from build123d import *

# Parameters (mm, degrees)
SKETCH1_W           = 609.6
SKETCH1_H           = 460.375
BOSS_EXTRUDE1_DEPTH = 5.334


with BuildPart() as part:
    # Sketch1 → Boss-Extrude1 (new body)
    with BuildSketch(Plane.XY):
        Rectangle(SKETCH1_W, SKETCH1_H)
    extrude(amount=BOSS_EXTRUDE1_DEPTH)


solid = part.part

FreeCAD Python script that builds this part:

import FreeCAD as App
import Part
import Sketcher
from FreeCAD import Vector
Q = App.Units.Quantity


def add_polygon(sketch, points):
    """Adds a closed chain of lines whose ends are joined by coincident constraints."""
    first, n = sketch.GeometryCount, len(points)
    for a, b in zip(points, points[1:] + points[:1]):
        sketch.addGeometry(Part.LineSegment(App.Vector(*a, 0), App.Vector(*b, 0)), False)
    for i in range(n):
        sketch.addConstraint(Sketcher.Constraint("Coincident", first + i, 2, first + (i + 1) % n, 1))

doc = App.newDocument("Part")
body = doc.addObject("PartDesign::Body", "Body")

sketch1 = body.newObject("Sketcher::SketchObject", "Sketch")
sketch1.AttachmentSupport = (doc.getObject("XY_Plane"), [""])
sketch1.MapMode = "FlatFace"
add_polygon(sketch1, [(-305, 230), (-305, -230), (305, -230), (305, 230)])
sketch1.addConstraint([
    Sketcher.Constraint("Vertical", 0),
    Sketcher.Constraint("Horizontal", 1),
    Sketcher.Constraint("Vertical", 2),
    Sketcher.Constraint("Horizontal", 3),
    Sketcher.Constraint("Symmetric", 0, 2, 2, 2, -1, 1),
    Sketcher.Constraint("DistanceX", 1, 1, 1, 2, Q("24 in")),
    Sketcher.Constraint("DistanceY", 0, 2, 0, 1, Q("18.125 in")),
])
pad1 = body.newObject("PartDesign::Pad", "Pad")
pad1.Profile = sketch1
pad1.Length = Q("0.21 in")

doc.recompute()
